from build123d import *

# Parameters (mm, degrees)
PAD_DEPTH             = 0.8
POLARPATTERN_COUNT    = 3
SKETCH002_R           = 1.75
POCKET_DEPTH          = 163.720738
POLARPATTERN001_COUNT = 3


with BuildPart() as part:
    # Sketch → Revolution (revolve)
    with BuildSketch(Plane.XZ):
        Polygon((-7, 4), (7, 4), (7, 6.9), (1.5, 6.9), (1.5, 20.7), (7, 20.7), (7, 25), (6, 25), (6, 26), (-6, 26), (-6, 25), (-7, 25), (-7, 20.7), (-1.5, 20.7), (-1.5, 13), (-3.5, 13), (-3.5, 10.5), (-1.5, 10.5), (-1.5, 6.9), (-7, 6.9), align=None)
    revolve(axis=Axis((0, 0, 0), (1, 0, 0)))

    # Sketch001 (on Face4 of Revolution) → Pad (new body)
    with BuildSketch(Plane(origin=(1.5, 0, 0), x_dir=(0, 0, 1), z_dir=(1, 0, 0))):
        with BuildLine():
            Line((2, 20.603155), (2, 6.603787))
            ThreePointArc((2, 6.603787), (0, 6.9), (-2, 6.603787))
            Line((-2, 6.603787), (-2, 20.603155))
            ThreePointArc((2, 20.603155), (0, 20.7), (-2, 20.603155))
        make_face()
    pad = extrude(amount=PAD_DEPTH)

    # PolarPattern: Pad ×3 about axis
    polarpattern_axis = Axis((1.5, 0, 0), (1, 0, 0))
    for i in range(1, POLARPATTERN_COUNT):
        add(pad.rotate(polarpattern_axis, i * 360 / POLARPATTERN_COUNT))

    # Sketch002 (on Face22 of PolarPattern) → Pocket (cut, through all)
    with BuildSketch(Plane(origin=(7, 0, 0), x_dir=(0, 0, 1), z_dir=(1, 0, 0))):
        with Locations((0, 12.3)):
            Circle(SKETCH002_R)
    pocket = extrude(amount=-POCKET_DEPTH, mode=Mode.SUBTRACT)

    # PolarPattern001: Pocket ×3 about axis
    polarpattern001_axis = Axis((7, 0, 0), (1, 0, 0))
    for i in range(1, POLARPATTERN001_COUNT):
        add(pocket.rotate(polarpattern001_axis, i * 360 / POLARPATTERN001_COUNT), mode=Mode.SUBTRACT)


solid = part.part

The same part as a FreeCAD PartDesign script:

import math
import FreeCAD as App
import Part
import Sketcher
from FreeCAD import Vector


def add_polygon(sketch, points):
    """Adds a closed chain of lines whose ends are joined by coincident constraints."""
    first, n = sketch.GeometryCount, len(points)
    for a, b in zip(points, points[1:] + points[:1]):
        sketch.addGeometry(Part.LineSegment(App.Vector(*a, 0), App.Vector(*b, 0)), False)
    for i in range(n):
        sketch.addConstraint(Sketcher.Constraint("Coincident", first + i, 2, first + (i + 1) % n, 1))

doc = App.newDocument("Part")
body = doc.addObject("PartDesign::Body", "Body")

sketch1 = doc.addObject("Sketcher::SketchObject", "Sketch")
body.addObject(sketch1)
sketch1.AttachmentSupport = (doc.XZ_Plane, [""])
sketch1.MapMode = "FlatFace"
add_polygon(sketch1, [(-7, 4), (7, 4), (7, 6.9), (1.5, 6.9), (1.5, 20.7), (7, 20.7), (7, 25), (6, 25), (6, 26), (-6, 26), (-6, 25), (-7, 25), (-7, 20.7), (-1.5, 20.7), (-1.5, 13), (-3.5, 13), (-3.5, 10.5), (-1.5, 10.5), (-1.5, 6.9), (-7, 6.9)])
sketch1.addConstraint(Sketcher.Constraint("Horizontal", 0))
sketch1.addConstraint(Sketcher.Constraint("Vertical", 1))
sketch1.addConstraint(Sketcher.Constraint("Horizontal", 2))
sketch1.addConstraint(Sketcher.Constraint("Vertical", 3))
sketch1.addConstraint(Sketcher.Constraint("Horizontal", 4))
sketch1.addConstraint(Sketcher.Constraint("Vertical", 5))
sketch1.addConstraint(Sketcher.Constraint("Horizontal", 6))
sketch1.addConstraint(Sketcher.Constraint("Vertical", 7))
sketch1.addConstraint(Sketcher.Constraint("Horizontal", 8))
sketch1.addConstraint(Sketcher.Constraint("Vertical", 9))
sketch1.addConstraint(Sketcher.Constraint("Horizontal", 10))
sketch1.addConstraint(Sketcher.Constraint("Vertical", 11))
sketch1.addConstraint(Sketcher.Constraint("Horizontal", 12))
sketch1.addConstraint(Sketcher.Constraint("Vertical", 13))
sketch1.addConstraint(Sketcher.Constraint("Horizontal", 14))
sketch1.addConstraint(Sketcher.Constraint("Vertical", 15))
sketch1.addConstraint(Sketcher.Constraint("Horizontal", 16))
sketch1.addConstraint(Sketcher.Constraint("Vertical", 17))
sketch1.addConstraint(Sketcher.Constraint("Horizontal", 18))
sketch1.addConstraint(Sketcher.Constraint("Vertical", 19))
sketch1.addConstraint(Sketcher.Constraint("Symmetric", 6, 2, 9, 2, -2))
sketch1.addConstraint(Sketcher.Constraint("Symmetric", 4, 2, 11, 2, -2))
sketch1.addConstraint(Sketcher.Constraint("Symmetric", 2, 2, 17, 2, -2))
sketch1.addConstraint(Sketcher.Constraint("Vertical", 1, 2, 4, 2))
sketch1.addConstraint(Sketcher.Constraint("Vertical", 13, 2, 16, 2))
sketch1.addConstraint(Sketcher.Constraint("Vertical", 11, 2, 18, 2))
sketch1.addConstraint(Sketcher.Constraint("Equal", 10, 7))
sketch1.addConstraint(Sketcher.Constraint("DistanceX", 0, 1, 0, 2, 14.0))
sketch1.addConstraint(Sketcher.Constraint("DistanceX", 6, 2, 6, 1, 1.0))
sketch1.addConstraint(Sketcher.Constraint("DistanceX", 14, 2, 14, 1, 2.0))
sketch1.addConstraint(Sketcher.Constraint("DistanceX", 2, 2, 2, 1, 5.5))
sketch1.addConstraint(Sketcher.Constraint("DistanceY", 1, 1, 1, 2, 2.9))
sketch1.addConstraint(Sketcher.Constraint("DistanceY", 3, 1, 3, 2, 13.8))
sketch1.addConstraint(Sketcher.Constraint("DistanceY", 5, 1, 5, 2, 4.3))
sketch1.addConstraint(Sketcher.Constraint("DistanceY", 13, 2, 13, 1, 7.7))
sketch1.addConstraint(Sketcher.Constraint("DistanceY", 15, 2, 15, 1, 2.5))
sketch1.addConstraint(Sketcher.Constraint("DistanceY", -1, 1, 0, 2, 4.0))
revolution = doc.addObject("PartDesign::Revolution", "Revolution")
body.addObject(revolution)
revolution.Profile = sketch1
revolution.ReferenceAxis = (sketch1, ["H_Axis"])
revolution.Angle = 360

sketch2 = doc.addObject("Sketcher::SketchObject", "Sketch001")
body.addObject(sketch2)
sketch2.AttachmentSupport = (doc.YZ_Plane, [""])
sketch2.MapMode = "FlatFace"
sketch2.AttachmentOffset = App.Placement(Vector(0, 0, 1.5), App.Rotation())
sketch2.addGeometry(Part.LineSegment(Vector(-6.6, 2, 0), Vector(-20.6, 2, 0)), False)
sketch2.addGeometry(Part.ArcOfCircle(Part.Circle(Vector(0, 0, 0), Vector(0, 0, 1), 20.7), math.radians(174.46), math.radians(185.54)), False)
sketch2.addGeometry(Part.LineSegment(Vector(-20.6, -2, 0), Vector(-6.6, -2, 0)), False)
sketch2.addGeometry(Part.ArcOfCircle(Part.Circle(Vector(0, 0, 0), Vector(0, 0, 1), 6.9), math.radians(163), math.radians(197)), False)
sketch2.addConstraint(Sketcher.Constraint("Coincident", 0, 2, 1, 1))
sketch2.addConstraint(Sketcher.Constraint("Coincident", 1, 2, 2, 1))
sketch2.addConstraint(Sketcher.Constraint("Coincident", 2, 2, 3, 2))
sketch2.addConstraint(Sketcher.Constraint("Coincident", 3, 1, 0, 1))
sketch2.addConstraint(Sketcher.Constraint("Horizontal", 0))
sketch2.addConstraint(Sketcher.Constraint("Horizontal", 2))
sketch2.addConstraint(Sketcher.Constraint("Coincident", 3, 3, -1, 1))
sketch2.addConstraint(Sketcher.Constraint("Symmetric", 0, 2, 1, 2, -1))
sketch2.addConstraint(Sketcher.Constraint("DistanceY", -1, 1, 0, 2, 2.0))
sketch2.addConstraint(Sketcher.Constraint("Radius", 1, 20.699979))
sketch2.addConstraint(Sketcher.Constraint("Radius", 3, 6.900005))
sketch2.addConstraint(Sketcher.Constraint("DistanceX", 0, 2, 0, 1, 13.999368))
pad1 = doc.addObject("PartDesign::Pad", "Pad")
body.addObject(pad1)
pad1.Profile = sketch2
pad1.Length = 0.8
doc.recompute()

polarpattern = doc.addObject("PartDesign::PolarPattern", "PolarPattern")
body.addObject(polarpattern)
polarpattern.Originals = [pad1]
polarpattern.Axis = (doc.X_Axis, [""])
polarpattern.Angle = 360
polarpattern.Occurrences = 3
body.Tip = polarpattern

sketch3 = doc.addObject("Sketcher::SketchObject", "Sketch002")
body.addObject(sketch3)
sketch3.AttachmentSupport = (doc.YZ_Plane, [""])
sketch3.MapMode = "FlatFace"
sketch3.AttachmentOffset = App.Placement(Vector(0, 0, 7), App.Rotation())
sketch3.addGeometry(Part.Circle(Vector(-12.3, 0, 0), Vector(0, 0, 1), 1.8), False)
sketch3.addConstraint(Sketcher.Constraint("PointOnObject", 0, 3, -1))
sketch3.addConstraint(Sketcher.Constraint("Diameter", 0, 3.5))
sketch3.addConstraint(Sketcher.Constraint("DistanceX", 0, 3, -1, 1, 12.3))
pocket1 = doc.addObject("PartDesign::Pocket", "Pocket")
body.addObject(pocket1)
pocket1.Profile = sketch3
pocket1.Type = "ThroughAll"
doc.recompute()

polarpattern2 = doc.addObject("PartDesign::PolarPattern", "PolarPattern001")
body.addObject(polarpattern2)
polarpattern2.Originals = [pocket1]
polarpattern2.Axis = (doc.X_Axis, [""])
polarpattern2.Angle = 360
polarpattern2.Occurrences = 3
body.Tip = polarpattern2

doc.recompute()
